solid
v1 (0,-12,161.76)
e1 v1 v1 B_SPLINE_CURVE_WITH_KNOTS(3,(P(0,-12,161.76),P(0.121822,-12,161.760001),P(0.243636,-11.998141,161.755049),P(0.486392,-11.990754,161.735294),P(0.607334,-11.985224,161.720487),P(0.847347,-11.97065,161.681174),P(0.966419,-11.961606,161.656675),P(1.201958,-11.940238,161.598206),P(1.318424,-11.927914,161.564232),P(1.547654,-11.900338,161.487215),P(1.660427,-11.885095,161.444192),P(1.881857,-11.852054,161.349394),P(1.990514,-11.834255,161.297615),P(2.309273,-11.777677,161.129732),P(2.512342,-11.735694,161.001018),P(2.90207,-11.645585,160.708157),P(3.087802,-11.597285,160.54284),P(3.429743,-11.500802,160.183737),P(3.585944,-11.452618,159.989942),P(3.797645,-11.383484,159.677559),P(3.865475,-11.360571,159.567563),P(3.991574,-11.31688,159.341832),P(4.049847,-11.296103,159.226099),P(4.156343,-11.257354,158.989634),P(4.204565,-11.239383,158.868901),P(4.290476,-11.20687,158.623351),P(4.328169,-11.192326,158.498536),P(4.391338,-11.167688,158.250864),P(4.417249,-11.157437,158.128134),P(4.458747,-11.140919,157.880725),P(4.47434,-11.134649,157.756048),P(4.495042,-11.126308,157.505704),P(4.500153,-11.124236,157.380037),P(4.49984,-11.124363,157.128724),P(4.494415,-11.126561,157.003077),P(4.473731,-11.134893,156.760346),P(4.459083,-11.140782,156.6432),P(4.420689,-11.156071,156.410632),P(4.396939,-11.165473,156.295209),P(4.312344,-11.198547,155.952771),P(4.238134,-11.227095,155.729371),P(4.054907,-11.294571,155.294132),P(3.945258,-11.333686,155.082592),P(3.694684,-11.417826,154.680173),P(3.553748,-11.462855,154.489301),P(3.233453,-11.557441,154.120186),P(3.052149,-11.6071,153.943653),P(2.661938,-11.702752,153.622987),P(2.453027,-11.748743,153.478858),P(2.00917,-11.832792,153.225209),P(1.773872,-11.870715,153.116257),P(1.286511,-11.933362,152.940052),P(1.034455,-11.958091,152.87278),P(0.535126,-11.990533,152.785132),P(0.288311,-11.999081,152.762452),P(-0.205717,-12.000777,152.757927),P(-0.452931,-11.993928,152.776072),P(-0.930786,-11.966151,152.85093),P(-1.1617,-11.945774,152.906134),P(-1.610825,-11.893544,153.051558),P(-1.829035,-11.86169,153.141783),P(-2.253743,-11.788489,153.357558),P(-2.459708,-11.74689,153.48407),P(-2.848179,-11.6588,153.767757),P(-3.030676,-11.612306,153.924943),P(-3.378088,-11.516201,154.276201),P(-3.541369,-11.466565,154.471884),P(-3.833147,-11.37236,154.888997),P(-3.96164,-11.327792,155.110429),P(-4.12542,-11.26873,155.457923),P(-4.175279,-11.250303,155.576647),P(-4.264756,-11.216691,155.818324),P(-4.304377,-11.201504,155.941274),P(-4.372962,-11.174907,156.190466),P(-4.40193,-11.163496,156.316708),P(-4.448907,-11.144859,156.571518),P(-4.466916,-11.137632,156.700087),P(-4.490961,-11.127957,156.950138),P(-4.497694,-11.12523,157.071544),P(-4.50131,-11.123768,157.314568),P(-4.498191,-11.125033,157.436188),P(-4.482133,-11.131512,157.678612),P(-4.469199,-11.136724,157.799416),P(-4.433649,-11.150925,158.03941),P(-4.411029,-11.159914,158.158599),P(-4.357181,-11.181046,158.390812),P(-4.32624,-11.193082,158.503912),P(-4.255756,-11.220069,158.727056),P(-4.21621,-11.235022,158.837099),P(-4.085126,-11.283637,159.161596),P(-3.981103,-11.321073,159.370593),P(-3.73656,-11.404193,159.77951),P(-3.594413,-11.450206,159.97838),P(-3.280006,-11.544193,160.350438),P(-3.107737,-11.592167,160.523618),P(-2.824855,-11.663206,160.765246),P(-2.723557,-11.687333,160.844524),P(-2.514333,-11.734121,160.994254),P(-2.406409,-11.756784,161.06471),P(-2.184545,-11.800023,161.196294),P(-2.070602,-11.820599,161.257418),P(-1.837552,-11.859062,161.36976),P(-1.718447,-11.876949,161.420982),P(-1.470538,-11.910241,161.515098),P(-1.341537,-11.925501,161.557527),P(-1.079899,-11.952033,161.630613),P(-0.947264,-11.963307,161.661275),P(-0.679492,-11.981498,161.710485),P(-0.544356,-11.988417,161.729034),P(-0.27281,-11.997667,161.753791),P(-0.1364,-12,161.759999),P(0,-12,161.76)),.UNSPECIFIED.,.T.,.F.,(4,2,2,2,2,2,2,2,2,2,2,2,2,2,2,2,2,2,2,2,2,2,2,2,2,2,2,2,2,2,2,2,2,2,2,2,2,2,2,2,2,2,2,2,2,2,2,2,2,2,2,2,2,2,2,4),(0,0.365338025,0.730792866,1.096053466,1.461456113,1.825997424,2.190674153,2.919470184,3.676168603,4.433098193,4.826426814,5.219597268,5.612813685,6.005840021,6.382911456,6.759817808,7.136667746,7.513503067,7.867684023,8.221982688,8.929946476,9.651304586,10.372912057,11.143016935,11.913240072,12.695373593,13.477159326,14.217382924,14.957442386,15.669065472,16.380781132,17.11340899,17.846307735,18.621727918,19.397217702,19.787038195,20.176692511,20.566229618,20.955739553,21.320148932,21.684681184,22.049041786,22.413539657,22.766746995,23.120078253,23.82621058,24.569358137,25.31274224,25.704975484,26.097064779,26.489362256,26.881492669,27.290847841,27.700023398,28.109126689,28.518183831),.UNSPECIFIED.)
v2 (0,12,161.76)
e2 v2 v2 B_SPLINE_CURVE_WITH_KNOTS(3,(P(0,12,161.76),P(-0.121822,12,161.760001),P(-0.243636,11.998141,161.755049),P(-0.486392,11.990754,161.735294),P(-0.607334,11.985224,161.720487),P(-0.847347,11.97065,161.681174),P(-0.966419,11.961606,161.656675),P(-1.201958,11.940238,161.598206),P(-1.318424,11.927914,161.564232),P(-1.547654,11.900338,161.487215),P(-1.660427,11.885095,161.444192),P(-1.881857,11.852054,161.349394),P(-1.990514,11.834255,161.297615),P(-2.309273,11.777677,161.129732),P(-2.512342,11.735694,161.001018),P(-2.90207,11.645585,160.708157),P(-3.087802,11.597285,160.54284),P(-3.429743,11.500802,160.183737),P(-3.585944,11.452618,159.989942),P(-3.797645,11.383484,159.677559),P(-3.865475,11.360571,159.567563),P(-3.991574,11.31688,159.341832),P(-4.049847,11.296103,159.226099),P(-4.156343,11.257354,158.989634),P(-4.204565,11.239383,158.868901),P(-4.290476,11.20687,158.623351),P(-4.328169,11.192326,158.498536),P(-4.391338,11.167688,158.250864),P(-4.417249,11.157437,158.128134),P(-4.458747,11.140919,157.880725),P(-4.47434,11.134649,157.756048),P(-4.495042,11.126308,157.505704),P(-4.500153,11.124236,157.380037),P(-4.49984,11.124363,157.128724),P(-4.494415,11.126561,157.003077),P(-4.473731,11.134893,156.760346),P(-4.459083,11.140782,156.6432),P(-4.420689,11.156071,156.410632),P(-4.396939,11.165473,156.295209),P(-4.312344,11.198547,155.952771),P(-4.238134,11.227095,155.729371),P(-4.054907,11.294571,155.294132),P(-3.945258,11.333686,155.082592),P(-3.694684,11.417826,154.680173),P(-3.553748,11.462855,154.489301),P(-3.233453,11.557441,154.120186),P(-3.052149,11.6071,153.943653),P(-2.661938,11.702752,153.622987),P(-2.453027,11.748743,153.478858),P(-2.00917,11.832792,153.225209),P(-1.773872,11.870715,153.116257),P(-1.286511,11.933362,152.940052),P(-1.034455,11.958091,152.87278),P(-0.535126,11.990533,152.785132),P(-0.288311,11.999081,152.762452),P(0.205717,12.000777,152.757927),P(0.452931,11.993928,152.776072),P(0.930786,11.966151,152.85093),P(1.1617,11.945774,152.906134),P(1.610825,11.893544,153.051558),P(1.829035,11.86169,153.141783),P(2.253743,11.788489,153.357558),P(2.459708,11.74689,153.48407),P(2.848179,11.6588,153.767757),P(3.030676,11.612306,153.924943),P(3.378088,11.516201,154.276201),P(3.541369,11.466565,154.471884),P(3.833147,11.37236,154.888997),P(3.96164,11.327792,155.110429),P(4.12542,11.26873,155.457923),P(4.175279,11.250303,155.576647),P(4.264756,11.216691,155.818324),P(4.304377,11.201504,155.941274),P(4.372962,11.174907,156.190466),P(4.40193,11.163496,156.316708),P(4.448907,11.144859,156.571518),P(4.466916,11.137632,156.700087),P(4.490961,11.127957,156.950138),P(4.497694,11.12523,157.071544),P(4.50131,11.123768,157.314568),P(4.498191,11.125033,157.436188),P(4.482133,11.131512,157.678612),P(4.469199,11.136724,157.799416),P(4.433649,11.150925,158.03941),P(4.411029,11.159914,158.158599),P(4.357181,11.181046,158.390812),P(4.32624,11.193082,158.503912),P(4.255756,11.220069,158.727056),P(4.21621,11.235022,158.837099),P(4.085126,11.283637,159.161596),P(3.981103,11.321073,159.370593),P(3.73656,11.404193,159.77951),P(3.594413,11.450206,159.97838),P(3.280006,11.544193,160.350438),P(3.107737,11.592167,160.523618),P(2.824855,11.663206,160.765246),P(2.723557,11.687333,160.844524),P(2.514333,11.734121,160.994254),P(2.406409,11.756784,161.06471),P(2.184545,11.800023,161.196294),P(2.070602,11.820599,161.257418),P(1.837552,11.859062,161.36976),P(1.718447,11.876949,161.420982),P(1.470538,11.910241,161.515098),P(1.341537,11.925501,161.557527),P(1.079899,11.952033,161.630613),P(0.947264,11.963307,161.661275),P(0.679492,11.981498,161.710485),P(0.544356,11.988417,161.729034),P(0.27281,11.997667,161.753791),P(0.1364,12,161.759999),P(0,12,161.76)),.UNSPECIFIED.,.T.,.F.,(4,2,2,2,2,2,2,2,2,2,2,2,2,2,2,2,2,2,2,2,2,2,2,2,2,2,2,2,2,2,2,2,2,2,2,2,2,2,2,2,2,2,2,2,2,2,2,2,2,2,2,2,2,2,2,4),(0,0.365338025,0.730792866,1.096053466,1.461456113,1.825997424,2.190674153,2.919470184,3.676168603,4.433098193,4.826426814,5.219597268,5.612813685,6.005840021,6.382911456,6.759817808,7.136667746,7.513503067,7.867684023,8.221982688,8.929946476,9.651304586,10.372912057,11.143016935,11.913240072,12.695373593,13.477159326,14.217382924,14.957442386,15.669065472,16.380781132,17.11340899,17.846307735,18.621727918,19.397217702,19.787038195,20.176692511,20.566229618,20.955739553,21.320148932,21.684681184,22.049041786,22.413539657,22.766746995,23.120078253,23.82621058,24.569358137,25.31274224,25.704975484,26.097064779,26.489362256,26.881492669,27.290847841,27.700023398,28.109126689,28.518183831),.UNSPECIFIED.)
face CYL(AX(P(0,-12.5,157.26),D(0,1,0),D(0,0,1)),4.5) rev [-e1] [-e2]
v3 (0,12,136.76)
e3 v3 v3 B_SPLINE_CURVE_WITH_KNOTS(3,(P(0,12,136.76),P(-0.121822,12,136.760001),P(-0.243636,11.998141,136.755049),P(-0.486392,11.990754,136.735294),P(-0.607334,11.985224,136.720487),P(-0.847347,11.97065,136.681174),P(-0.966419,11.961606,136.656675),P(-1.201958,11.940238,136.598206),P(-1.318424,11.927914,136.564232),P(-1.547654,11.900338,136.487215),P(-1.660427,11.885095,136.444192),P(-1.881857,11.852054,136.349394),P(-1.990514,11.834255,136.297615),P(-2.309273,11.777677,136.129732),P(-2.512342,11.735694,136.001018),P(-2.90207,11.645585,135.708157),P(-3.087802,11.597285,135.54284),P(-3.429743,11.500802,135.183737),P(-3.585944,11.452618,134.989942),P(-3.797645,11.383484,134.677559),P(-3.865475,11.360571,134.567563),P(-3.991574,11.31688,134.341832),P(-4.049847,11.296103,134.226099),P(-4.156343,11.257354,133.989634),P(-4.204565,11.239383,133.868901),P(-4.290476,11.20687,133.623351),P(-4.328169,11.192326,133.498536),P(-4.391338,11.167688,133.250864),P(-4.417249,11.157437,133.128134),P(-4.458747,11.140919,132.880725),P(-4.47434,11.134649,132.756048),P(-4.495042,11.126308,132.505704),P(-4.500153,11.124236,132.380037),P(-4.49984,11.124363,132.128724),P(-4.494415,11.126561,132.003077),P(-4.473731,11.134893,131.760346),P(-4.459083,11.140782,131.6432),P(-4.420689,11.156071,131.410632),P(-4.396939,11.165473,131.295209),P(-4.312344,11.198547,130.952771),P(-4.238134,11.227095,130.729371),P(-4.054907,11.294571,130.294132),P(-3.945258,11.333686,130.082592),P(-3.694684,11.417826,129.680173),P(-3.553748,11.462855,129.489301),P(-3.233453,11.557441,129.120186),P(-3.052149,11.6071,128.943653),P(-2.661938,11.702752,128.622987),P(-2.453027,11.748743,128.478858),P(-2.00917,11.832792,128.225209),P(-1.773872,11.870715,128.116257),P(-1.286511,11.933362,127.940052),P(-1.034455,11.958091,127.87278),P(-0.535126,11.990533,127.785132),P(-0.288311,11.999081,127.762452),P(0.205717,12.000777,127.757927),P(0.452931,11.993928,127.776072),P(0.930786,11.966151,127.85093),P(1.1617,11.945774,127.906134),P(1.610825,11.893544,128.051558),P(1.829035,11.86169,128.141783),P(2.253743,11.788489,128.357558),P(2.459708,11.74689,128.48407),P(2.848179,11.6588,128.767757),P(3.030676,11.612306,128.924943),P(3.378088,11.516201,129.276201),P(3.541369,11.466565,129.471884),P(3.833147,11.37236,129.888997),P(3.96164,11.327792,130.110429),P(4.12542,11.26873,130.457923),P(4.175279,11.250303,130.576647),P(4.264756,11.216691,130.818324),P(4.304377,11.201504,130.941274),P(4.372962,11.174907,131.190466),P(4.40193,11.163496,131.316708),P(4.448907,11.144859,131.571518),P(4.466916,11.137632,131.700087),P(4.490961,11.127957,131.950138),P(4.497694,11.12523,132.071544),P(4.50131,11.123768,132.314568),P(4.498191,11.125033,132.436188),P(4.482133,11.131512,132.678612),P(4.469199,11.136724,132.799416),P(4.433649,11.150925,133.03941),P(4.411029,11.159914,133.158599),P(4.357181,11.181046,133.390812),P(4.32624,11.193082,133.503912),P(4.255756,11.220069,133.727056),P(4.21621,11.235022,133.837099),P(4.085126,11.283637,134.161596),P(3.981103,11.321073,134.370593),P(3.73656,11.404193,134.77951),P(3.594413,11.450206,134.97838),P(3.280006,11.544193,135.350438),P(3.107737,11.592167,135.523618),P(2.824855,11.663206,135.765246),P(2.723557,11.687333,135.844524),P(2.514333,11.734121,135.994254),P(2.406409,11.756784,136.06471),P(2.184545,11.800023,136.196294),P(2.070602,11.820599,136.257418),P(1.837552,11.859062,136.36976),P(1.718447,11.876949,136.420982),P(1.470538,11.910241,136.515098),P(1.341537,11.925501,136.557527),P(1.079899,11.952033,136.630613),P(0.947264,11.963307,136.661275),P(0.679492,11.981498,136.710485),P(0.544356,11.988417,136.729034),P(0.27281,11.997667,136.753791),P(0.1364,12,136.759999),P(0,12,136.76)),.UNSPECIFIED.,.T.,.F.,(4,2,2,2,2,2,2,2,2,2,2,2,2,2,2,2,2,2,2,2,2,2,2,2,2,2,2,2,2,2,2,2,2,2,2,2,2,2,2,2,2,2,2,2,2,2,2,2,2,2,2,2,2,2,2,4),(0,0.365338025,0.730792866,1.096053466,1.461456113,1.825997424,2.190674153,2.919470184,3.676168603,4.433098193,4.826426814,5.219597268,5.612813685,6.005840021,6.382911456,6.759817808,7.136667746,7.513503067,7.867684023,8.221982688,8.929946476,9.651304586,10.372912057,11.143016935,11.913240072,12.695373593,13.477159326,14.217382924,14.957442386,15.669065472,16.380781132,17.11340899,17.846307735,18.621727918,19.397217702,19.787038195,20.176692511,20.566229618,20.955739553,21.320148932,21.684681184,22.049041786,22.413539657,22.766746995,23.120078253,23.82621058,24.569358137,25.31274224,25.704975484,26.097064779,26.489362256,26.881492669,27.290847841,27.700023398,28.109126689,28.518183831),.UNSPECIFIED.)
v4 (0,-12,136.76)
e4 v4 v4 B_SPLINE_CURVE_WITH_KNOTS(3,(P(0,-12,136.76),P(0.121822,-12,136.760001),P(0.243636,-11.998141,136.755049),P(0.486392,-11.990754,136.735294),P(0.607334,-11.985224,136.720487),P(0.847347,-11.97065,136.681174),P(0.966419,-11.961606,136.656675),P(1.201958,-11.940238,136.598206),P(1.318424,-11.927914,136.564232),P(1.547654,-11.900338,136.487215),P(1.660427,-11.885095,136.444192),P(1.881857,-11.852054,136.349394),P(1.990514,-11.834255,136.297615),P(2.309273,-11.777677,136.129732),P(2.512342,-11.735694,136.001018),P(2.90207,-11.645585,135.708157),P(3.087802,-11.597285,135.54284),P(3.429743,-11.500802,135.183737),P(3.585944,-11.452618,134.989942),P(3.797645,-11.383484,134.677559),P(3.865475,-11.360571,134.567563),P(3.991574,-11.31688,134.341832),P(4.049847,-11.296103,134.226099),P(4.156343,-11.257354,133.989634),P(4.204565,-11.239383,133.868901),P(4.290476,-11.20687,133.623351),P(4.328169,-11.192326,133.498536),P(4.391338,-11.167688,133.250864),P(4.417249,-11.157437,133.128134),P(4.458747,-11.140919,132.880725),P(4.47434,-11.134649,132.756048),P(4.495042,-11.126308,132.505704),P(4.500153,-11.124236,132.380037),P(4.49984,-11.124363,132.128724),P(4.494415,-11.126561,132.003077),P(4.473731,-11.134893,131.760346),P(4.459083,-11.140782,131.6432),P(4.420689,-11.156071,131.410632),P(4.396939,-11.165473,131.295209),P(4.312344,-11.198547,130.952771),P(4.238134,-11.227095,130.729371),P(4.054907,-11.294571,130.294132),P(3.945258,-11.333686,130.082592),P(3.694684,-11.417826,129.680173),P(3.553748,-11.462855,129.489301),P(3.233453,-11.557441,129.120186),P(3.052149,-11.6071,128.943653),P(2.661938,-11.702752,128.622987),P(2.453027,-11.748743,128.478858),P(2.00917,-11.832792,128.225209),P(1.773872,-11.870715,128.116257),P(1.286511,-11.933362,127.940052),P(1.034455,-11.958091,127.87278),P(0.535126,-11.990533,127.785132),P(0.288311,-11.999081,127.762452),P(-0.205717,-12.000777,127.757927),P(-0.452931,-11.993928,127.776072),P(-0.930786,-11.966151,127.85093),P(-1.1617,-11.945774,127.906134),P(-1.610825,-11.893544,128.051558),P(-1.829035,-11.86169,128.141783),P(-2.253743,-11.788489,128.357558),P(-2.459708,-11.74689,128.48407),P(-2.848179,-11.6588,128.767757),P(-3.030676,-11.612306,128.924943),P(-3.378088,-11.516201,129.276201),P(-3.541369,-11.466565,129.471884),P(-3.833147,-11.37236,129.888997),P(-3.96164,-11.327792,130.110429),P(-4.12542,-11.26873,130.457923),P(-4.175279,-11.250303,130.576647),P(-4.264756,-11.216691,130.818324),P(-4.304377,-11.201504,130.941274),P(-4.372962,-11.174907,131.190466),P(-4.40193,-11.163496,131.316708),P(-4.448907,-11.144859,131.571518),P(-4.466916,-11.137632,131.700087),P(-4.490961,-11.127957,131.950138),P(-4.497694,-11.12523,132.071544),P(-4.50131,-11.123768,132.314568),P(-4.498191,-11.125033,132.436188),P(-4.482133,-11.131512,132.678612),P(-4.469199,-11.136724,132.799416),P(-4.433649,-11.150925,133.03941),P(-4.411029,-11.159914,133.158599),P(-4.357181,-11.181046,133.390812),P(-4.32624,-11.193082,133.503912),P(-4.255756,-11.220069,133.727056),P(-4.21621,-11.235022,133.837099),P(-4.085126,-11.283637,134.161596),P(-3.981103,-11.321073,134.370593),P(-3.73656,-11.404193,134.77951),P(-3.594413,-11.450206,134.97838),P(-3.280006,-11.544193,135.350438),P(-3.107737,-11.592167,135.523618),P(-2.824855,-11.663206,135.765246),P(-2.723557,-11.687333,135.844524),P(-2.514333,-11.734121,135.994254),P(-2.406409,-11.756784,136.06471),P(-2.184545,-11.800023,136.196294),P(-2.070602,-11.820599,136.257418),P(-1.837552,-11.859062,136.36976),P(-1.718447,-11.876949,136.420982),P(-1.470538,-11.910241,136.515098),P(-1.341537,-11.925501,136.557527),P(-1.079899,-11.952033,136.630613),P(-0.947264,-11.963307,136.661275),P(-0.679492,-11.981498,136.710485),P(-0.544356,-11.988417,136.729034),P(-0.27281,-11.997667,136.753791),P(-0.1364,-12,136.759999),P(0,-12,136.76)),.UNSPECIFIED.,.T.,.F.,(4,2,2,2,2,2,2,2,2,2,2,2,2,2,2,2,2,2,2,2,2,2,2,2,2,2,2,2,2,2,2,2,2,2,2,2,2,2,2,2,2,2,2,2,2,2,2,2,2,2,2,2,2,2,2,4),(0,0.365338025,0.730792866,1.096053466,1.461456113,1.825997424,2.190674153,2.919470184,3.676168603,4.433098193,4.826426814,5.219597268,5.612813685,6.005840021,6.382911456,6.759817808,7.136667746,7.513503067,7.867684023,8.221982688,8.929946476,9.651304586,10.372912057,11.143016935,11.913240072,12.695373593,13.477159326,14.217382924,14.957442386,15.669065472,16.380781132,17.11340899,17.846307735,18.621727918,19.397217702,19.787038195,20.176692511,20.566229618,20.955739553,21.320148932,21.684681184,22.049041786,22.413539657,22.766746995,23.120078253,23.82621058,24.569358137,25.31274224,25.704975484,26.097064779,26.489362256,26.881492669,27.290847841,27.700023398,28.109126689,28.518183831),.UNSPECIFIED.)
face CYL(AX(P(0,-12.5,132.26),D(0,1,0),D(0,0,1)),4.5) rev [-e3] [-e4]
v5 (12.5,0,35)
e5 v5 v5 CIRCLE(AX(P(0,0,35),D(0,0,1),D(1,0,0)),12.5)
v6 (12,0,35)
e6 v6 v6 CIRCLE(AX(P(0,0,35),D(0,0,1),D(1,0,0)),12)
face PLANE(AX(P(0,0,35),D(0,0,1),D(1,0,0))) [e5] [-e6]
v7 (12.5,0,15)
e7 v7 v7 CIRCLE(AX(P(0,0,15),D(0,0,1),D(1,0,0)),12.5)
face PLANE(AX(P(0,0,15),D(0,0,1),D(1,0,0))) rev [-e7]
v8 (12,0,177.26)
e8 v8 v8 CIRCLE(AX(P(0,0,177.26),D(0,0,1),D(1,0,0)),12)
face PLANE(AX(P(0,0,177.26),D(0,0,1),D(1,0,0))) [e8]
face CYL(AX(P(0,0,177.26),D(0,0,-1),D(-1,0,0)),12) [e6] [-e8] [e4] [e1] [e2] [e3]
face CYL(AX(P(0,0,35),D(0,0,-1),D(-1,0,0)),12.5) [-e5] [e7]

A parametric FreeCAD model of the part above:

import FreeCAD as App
import Part
import Sketcher
from FreeCAD import Vector
Q = App.Units.Quantity

doc = App.newDocument("Part")
body = doc.addObject("PartDesign::Body", "Body")

# Sketch on XY plane
sketch1 = body.newObject("Sketcher::SketchObject", "Sketch")
sketch1.AttachmentSupport = (doc.getObject("XY_Plane"), [""])
sketch1.MapMode = "FlatFace"
sketch1.addGeometry(Part.Circle(Vector(0, 0, 0), Vector(0, 0, 1), 10), False)
sketch1.addConstraint([
    Sketcher.Constraint("Coincident", 0, 3, -1, 1),
    Sketcher.Constraint("Diameter", 0, Q("20 mm")),
])
pad1 = body.newObject("PartDesign::Pad", "Pad")
pad1.Profile = sketch1
pad1.Length = 15

# Sketch on XY plane
sketch2 = body.newObject("Sketcher::SketchObject", "Sketch001")
sketch2.AttachmentSupport = (doc.getObject("XY_Plane"), [""])
sketch2.MapMode = "FlatFace"
sketch2.AttachmentOffset = App.Placement(Vector(0, 0, 15), App.Rotation())
sketch2.addGeometry(Part.Circle(Vector(0, 0, 0), Vector(0, 0, 1), 12), False)
sketch2.addConstraint([
    Sketcher.Constraint("Coincident", 0, 3, -1, 1),
    Sketcher.Constraint("Diameter", 0, Q("25 mm")),
])
pad2 = body.newObject("PartDesign::Pad", "Pad001")
pad2.Profile = sketch2
pad2.Length = 20

# Sketch on XY plane
sketch3 = body.newObject("Sketcher::SketchObject", "Sketch002")
sketch3.AttachmentSupport = (doc.getObject("XY_Plane"), [""])
sketch3.MapMode = "FlatFace"
sketch3.AttachmentOffset = App.Placement(Vector(0, 0, 35), App.Rotation())
sketch3.addGeometry(Part.Circle(Vector(0, 0, 0), Vector(0, 0, 1), 12), False)
sketch3.addConstraint([
    Sketcher.Constraint("Coincident", 0, 3, -1, 1),
    Sketcher.Constraint("Diameter", 0, Q("24 mm")),
])
pad3 = body.newObject("PartDesign::Pad", "Pad002")
pad3.Profile = sketch3
pad3.Length = 142.26

# Sketch on XZ plane
sketch4 = body.newObject("Sketcher::SketchObject", "Sketch003")
sketch4.AttachmentSupport = (doc.getObject("XZ_Plane"), [""])
sketch4.MapMode = "FlatFace"
sketch4.addGeometry(Part.Circle(Vector(0, 157.3, 0), Vector(0, 0, 1), 4.5), False)
sketch4.addConstraint([
    Sketcher.Constraint("PointOnObject", 0, 3, -2),
    Sketcher.Constraint("Diameter", 0, Q("9 mm")),
    Sketcher.Constraint("DistanceY", -1, 1, 0, 3, Q("157.26 mm")),
])
pocket1 = body.newObject("PartDesign::Pocket", "Pocket")
pocket1.Profile = sketch4
pocket1.Length = 358.278585
pocket1.Midplane = True

# Sketch on XZ plane
sketch5 = body.newObject("Sketcher::SketchObject", "Sketch004")
sketch5.AttachmentSupport = (doc.getObject("XZ_Plane"), [""])
sketch5.MapMode = "FlatFace"
sketch5.addGeometry([
    Part.LineSegment(Vector(-38, -5, 0), Vector(-38, 15, 0)),
    Part.LineSegment(Vector(-38, 15, 0), Vector(12, 15, 0)),
    Part.LineSegment(Vector(12, 15, 0), Vector(12, -5, 0)),
    Part.LineSegment(Vector(12, -5, 0), Vector(-38, -5, 0)),
], False)
sketch5.addConstraint([
    Sketcher.Constraint("Coincident", 0, 2, 1, 1),
    Sketcher.Constraint("Coincident", 1, 2, 2, 1),
    Sketcher.Constraint("Coincident", 2, 2, 3, 1),
    Sketcher.Constraint("Coincident", 3, 2, 0, 1),
    Sketcher.Constraint("Vertical", 0),
    Sketcher.Constraint("Horizontal", 1),
    Sketcher.Constraint("Vertical", 2),
    Sketcher.Constraint("Horizontal", 3),
    Sketcher.Constraint("DistanceY", -1, 1, 0, 2, Q("15 mm")),
    Sketcher.Constraint("DistanceX", -1, 1, 1, 2, Q("12.5 mm")),
    Sketcher.Constraint("DistanceY", 0, 1, 0, 2, Q("19.874219 mm")),
    Sketcher.Constraint("DistanceX", 1, 1, 1, 2, Q("50.129658 mm")),
])
pocket2 = body.newObject("PartDesign::Pocket", "Pocket001")
pocket2.Profile = sketch5
pocket2.Type = "ThroughAll"
pocket2.Midplane = True
doc.recompute()

linearpattern = body.newObject("PartDesign::LinearPattern", "LinearPattern")
linearpattern.Originals = [pocket1]
linearpattern.Direction = (doc.getObject("Z_Axis"), [""])
linearpattern.Mode = "offset"
linearpattern.Offset = 25
linearpattern.Occurrences = 2
linearpattern.Reversed = True
body.Tip = linearpattern

doc.recompute()
